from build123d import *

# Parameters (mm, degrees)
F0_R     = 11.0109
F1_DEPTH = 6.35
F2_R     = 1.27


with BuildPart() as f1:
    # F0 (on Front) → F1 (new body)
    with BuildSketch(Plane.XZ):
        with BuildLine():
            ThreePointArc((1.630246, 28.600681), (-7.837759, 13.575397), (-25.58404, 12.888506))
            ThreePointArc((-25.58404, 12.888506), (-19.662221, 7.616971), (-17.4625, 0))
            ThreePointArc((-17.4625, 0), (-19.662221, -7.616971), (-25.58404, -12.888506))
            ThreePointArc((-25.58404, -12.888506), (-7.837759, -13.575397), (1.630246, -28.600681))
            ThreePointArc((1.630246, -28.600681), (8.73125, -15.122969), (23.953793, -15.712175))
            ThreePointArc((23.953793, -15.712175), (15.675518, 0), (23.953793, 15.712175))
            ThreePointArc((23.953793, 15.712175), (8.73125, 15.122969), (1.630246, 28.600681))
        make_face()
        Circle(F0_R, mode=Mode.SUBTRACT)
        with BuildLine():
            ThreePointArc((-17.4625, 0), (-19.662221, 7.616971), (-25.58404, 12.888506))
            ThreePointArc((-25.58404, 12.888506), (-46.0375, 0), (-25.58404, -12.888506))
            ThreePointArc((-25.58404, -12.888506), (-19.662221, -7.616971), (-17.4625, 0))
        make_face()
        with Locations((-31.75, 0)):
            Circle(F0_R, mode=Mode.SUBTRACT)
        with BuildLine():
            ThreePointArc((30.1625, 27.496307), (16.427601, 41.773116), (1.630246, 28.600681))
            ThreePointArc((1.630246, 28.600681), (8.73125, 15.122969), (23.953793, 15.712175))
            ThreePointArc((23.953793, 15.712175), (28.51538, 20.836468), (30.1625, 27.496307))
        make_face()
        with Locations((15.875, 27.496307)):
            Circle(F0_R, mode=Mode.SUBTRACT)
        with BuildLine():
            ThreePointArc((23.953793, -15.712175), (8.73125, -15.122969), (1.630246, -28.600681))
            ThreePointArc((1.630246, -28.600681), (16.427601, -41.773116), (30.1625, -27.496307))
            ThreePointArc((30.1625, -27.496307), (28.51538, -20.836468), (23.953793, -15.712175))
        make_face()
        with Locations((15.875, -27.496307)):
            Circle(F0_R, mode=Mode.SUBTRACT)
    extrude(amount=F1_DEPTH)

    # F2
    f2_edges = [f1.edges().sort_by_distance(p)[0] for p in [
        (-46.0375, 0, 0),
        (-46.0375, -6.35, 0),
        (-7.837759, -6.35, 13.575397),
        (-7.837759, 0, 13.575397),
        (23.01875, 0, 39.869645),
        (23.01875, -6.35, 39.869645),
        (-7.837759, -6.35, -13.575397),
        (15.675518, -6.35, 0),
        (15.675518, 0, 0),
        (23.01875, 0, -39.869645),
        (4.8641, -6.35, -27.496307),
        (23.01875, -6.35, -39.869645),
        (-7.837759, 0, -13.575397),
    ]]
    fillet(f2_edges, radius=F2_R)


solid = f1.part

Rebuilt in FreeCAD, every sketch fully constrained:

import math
import FreeCAD as App
import Part
import Sketcher

V = App.Vector
Q = App.Units.Quantity


def edges_at(feature, points):
    """Names of the edges that pass closest to the given points."""
    edges = feature.Shape.Edges
    near = lambda p: min(range(len(edges)), key=lambda i: edges[i].distToShape(Part.Vertex(*p))[0])
    return sorted({f"Edge{near(p) + 1}" for p in points})

doc = App.newDocument("Part")
params = doc.addObject("Spreadsheet::Sheet", "Params")
for row, (alias, value) in enumerate([
    ("sketch1_radius", "0.75 in"),
    ("sketch1_diameter", "0.867 in"),
    ("sketch1_radius2", "0.5625 in"),
    ("pad1_length", "0.25 in"),
    ("fillet_radius", "0.05 in"),
], start=1):
    params.set(f"A{row}", alias)
    params.set(f"B{row}", "=" + value)
    params.setAlias(f"B{row}", alias)

body = doc.addObject("PartDesign::Body", "Body")

sketch1 = body.newObject("Sketcher::SketchObject", "Sketch")
sketch1.AttachmentSupport = (doc.getObject("XZ_Plane"), [""])
sketch1.MapMode = "FlatFace"
sketch1.addGeometry(Part.ArcOfCircle(Part.Circle(V(-17.362759, 30.073181, 0), V(0, 0, 1), 19.05), math.radians(-115.566811), math.radians(-4.43319)), False)
sketch1.addGeometry(Part.ArcOfCircle(Part.Circle(V(-31.75, 0, 0), V(0, 0, 1), 14.2875), math.radians(64.43319), math.radians(295.56681)), False)
sketch1.addGeometry(Part.ArcOfCircle(Part.Circle(V(-17.362759, -30.073181, 0), V(0, 0, 1), 19.05), math.radians(4.43319), math.radians(115.566811)), False)
sketch1.addGeometry(Part.ArcOfCircle(Part.Circle(V(15.875, -27.496306, 0), V(0, 0, 1), 14.2875), math.radians(-175.566812), math.radians(-0.000002)), False)
sketch1.addGeometry(Part.ArcOfCircle(Part.Circle(V(15.875, -27.496306, 0), V(0, 0, 1), 14.2875), math.radians(-0.000002), math.radians(55.566814)), False)
sketch1.addGeometry(Part.ArcOfCircle(Part.Circle(V(34.725518, 0, 0), V(0, 0, 1), 19.05), math.radians(124.433191), math.radians(235.566809)), False)
sketch1.addGeometry(Part.ArcOfCircle(Part.Circle(V(15.875, 27.496306, 0), V(0, 0, 1), 14.2875), math.radians(-55.566814), math.radians(0.000002)), False)
sketch1.addGeometry(Part.ArcOfCircle(Part.Circle(V(15.875, 27.496306, 0), V(0, 0, 1), 14.2875), math.radians(0.000002), math.radians(175.566812)), False)
sketch1.addGeometry(Part.Circle(V(15.875, -27.496307, 0), V(0, 0, 1), 11.0109), False)
sketch1.addGeometry(Part.Circle(V(-31.75, 0, 0), V(0, 0, 1), 11.0109), False)
sketch1.addGeometry(Part.Circle(V(0, 0, 0), V(0, 0, 1), 11.0109), False)
sketch1.addGeometry(Part.Circle(V(15.875, 27.496307, 0), V(0, 0, 1), 11.0109), False)
sketch1.addConstraint(Sketcher.Constraint("Tangent", 0, 1, 1, 1))
sketch1.addConstraint(Sketcher.Constraint("Tangent", 1, 2, 2, 2))
sketch1.addConstraint(Sketcher.Constraint("Tangent", 2, 1, 3, 1))
sketch1.addConstraint(Sketcher.Constraint("Tangent", 3, 2, 4, 1))
sketch1.addConstraint(Sketcher.Constraint("Tangent", 4, 2, 5, 2))
sketch1.addConstraint(Sketcher.Constraint("Tangent", 5, 1, 6, 1))
sketch1.addConstraint(Sketcher.Constraint("Tangent", 6, 2, 7, 1))
sketch1.addConstraint(Sketcher.Constraint("Tangent", 7, 2, 0, 2))
sketch1.addConstraint(Sketcher.Constraint("Coincident", 10, 3, -1, 1))
sketch1.addConstraint(Sketcher.Constraint("Coincident", 8, 3, 3, 3))
sketch1.addConstraint(Sketcher.Constraint("Coincident", 9, 3, 1, 3))
sketch1.addConstraint(Sketcher.Constraint("Coincident", 11, 3, 6, 3))
sketch1.addConstraint(Sketcher.Constraint("Equal", 0, 2))
sketch1.addConstraint(Sketcher.Constraint("Equal", 1, 3))
sketch1.addConstraint(Sketcher.Constraint("Equal", 3, 4))
sketch1.addConstraint(Sketcher.Constraint("Equal", 2, 5))
sketch1.addConstraint(Sketcher.Constraint("Equal", 4, 6))
sketch1.addConstraint(Sketcher.Constraint("Equal", 6, 7))
sketch1.addConstraint(Sketcher.Constraint("Equal", 8, 9))
sketch1.addConstraint(Sketcher.Constraint("Equal", 9, 10))
sketch1.addConstraint(Sketcher.Constraint("Equal", 10, 11))
sketch1.addConstraint(Sketcher.Constraint("Symmetric", 0, 3, 2, 3, -1))
sketch1.addConstraint(Sketcher.Constraint("Symmetric", 3, 2, 6, 2, -1))
sketch1.addConstraint(Sketcher.Constraint("Horizontal", 8, 3, 3, 2))
sketch1.addConstraint(Sketcher.Constraint("Radius", 0, Q("0.75 in")))
sketch1.addConstraint(Sketcher.Constraint("Diameter", 8, Q("0.867 in")))
sketch1.addConstraint(Sketcher.Constraint("Radius", 1, Q("0.5625 in")))
sketch1.addConstraint(Sketcher.Constraint("DistanceX", 1, 3, -1, 1, Q("1.25 in")))
sketch1.addConstraint(Sketcher.Constraint("DistanceX", -1, 1, 3, 3, Q("0.625 in")))
sketch1.addConstraint(Sketcher.Constraint("DistanceY", 2, 3, 2, 1, 1.4725))
sketch1.setExpression("Constraints[24]", "Params.sketch1_radius")
sketch1.setExpression("Constraints[25]", "Params.sketch1_diameter")
sketch1.setExpression("Constraints[26]", "Params.sketch1_radius2")
pad1 = body.newObject("PartDesign::Pad", "Pad")
pad1.Profile = sketch1
pad1.setExpression("Length", "Params.pad1_length")
doc.recompute()

fillet = body.newObject("PartDesign::Fillet", "Fillet")
fillet.Base = (pad1, edges_at(pad1, [
    (-46.038, 0, 0),
    (-46.038, -6.35, 0),
    (-7.838, -6.35, 13.575),
    (-7.838, 0, 13.575),
    (16.428, 0, 41.773),
    (16.428, -6.35, 41.773),
    (-7.838, -6.35, -13.575),
    (15.676, -6.35, 0),
    (15.676, 0, 0),
    (16.428, 0, -41.773),
    (4.864, -6.35, -27.496),
    (16.428, -6.35, -41.773),
    (-7.838, 0, -13.575),
]))
fillet.setExpression("Radius", "Params.fillet_radius")

doc.recompute()
